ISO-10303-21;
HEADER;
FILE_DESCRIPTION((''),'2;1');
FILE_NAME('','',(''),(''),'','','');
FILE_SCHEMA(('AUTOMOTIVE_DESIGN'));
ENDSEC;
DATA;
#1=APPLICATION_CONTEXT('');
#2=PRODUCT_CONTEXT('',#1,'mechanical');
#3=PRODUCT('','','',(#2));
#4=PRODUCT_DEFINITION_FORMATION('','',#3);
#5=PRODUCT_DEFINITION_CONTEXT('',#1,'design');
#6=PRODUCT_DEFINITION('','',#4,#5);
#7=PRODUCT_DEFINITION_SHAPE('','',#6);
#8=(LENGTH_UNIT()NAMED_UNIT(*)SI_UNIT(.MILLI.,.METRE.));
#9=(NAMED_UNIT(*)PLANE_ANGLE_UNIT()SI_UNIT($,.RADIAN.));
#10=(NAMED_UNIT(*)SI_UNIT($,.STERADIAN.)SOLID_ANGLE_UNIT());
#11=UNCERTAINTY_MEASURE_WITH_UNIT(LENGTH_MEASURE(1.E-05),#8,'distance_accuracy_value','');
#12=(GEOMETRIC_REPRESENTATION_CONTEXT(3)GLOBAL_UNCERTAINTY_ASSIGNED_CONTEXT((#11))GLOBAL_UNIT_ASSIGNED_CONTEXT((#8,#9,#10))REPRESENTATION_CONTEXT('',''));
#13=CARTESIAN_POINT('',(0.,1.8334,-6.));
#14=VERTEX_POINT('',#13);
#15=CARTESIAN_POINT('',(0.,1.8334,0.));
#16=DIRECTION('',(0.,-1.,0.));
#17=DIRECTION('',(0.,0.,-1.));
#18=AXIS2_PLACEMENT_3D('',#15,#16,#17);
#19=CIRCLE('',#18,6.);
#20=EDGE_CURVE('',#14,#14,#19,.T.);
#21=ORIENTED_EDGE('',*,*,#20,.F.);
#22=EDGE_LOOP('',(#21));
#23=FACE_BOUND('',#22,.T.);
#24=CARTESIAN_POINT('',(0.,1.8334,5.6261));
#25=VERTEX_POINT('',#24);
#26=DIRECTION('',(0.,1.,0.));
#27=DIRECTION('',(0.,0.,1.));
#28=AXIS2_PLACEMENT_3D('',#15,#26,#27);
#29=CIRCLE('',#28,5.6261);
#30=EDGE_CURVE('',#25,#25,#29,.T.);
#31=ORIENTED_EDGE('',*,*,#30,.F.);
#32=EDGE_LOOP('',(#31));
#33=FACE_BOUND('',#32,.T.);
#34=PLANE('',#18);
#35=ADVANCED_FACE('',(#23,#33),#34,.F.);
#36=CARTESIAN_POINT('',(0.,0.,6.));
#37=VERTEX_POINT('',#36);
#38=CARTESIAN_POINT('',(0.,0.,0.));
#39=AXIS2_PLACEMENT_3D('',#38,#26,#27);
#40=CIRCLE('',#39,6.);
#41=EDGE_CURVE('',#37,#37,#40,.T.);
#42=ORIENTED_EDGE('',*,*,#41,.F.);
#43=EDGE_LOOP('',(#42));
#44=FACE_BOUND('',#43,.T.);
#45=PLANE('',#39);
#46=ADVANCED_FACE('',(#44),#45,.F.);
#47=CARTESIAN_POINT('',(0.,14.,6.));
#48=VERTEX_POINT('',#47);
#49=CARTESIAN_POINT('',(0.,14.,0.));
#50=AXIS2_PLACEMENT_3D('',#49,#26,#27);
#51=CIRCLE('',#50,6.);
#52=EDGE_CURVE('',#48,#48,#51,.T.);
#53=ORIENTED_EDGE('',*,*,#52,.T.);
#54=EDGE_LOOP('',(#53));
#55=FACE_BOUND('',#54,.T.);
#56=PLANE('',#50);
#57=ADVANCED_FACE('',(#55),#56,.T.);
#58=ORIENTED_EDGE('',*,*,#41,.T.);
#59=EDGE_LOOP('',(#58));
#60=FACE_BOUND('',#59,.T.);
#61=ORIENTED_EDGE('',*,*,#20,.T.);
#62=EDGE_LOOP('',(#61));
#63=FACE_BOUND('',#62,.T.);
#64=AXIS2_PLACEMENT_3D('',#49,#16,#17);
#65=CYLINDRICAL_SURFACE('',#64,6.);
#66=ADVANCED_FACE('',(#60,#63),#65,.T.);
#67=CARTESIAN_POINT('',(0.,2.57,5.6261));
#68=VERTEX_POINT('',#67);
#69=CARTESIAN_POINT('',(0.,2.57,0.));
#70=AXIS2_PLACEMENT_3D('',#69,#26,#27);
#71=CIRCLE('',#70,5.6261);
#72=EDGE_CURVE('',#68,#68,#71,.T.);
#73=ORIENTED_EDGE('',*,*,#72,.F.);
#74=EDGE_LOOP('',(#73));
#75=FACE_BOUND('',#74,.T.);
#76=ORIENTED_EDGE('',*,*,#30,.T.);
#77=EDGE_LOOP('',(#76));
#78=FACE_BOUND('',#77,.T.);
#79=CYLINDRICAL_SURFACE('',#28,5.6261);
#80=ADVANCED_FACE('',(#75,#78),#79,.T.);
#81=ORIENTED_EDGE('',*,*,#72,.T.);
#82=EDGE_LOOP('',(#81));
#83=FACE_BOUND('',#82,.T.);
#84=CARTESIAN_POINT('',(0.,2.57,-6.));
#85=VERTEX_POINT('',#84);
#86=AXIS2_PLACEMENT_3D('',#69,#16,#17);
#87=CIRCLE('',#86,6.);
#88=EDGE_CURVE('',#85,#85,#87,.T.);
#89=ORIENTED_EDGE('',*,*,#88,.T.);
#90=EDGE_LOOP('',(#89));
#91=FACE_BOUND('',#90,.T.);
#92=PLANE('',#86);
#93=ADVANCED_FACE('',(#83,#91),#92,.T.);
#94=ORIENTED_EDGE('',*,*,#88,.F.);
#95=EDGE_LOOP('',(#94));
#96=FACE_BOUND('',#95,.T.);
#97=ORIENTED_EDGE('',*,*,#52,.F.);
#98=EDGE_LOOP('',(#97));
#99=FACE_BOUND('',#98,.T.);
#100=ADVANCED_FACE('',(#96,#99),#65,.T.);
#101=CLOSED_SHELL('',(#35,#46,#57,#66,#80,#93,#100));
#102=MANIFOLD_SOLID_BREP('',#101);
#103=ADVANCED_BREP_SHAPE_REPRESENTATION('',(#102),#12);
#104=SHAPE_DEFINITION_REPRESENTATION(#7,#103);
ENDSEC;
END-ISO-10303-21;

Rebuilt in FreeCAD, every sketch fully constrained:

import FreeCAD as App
import Part
import Sketcher
from FreeCAD import Vector
Q = App.Units.Quantity

doc = App.newDocument("Part")
body = doc.addObject("PartDesign::Body", "Body")

sketch1 = body.newObject("Sketcher::SketchObject", "Sketch")
sketch1.AttachmentSupport = (doc.getObject("XZ_Plane"), [""])
sketch1.MapMode = "FlatFace"
sketch1.addGeometry(Part.Circle(Vector(0, 0, 0), Vector(0, 0, 1), 6), False)
sketch1.addConstraint([
    Sketcher.Constraint("Coincident", 0, 3, -1, 1),
    Sketcher.Constraint("Diameter", 0, Q("12 mm")),
])
pad1 = body.newObject("PartDesign::Pad", "Pad")
pad1.Profile = sketch1
pad1.Length = 14
pad1.Reversed = True

sketch2 = body.newObject("Sketcher::SketchObject", "Sketch001")
sketch2.AttachmentSupport = (doc.getObject("XZ_Plane"), [""])
sketch2.MapMode = "FlatFace"
sketch2.AttachmentOffset = App.Placement(Vector(0, 0, -2.57), App.Rotation())
sketch2.addGeometry([
    Part.LineSegment(Vector(-8, -7, 0), Vector(-8, 8, 0)),
    Part.LineSegment(Vector(-8, 8, 0), Vector(10, 8, 0)),
    Part.LineSegment(Vector(10, 8, 0), Vector(9, -8, 0)),
    Part.LineSegment(Vector(9, -8, 0), Vector(-8, -7, 0)),
    Part.Circle(Vector(0, 0, 0), Vector(0, 0, 1), 6),
], False)
sketch2.addConstraint([
    Sketcher.Constraint("Coincident", 0, 2, 1, 1),
    Sketcher.Constraint("Coincident", 1, 2, 2, 1),
    Sketcher.Constraint("Coincident", 2, 2, 3, 1),
    Sketcher.Constraint("Coincident", 3, 2, 0, 1),
    Sketcher.Constraint("Horizontal", 1),
    Sketcher.Constraint("Coincident", 4, 3, -1, 1),
    Sketcher.Constraint("Diameter", 4, Q("11.2522 mm")),
    Sketcher.Constraint("DistanceY", 3, 2, -1, 1, Q("6.7723 mm")),
    Sketcher.Constraint("Distance", 2, Q("15.88826 mm")),
    Sketcher.Constraint("DistanceX", 1, 1, 1, 2, Q("18.144326 mm")),
    Sketcher.Constraint("DistanceX", -1, 1, 1, 2, Q("10.39573 mm")),
    Sketcher.Constraint("DistanceY", 2, 2, -1, 1, Q("7.84075 mm")),
    Sketcher.Constraint("DistanceX", 0, 2, 2, 2, Q("16.901861 mm")),
    Sketcher.Constraint("DistanceX", 3, 2, 0, 2, Q("0.166868 mm")),
])
pocket1 = body.newObject("PartDesign::Pocket", "Pocket")
pocket1.Profile = sketch2
pocket1.Length = 0.7366
pocket1.Reversed = True

doc.recompute()
